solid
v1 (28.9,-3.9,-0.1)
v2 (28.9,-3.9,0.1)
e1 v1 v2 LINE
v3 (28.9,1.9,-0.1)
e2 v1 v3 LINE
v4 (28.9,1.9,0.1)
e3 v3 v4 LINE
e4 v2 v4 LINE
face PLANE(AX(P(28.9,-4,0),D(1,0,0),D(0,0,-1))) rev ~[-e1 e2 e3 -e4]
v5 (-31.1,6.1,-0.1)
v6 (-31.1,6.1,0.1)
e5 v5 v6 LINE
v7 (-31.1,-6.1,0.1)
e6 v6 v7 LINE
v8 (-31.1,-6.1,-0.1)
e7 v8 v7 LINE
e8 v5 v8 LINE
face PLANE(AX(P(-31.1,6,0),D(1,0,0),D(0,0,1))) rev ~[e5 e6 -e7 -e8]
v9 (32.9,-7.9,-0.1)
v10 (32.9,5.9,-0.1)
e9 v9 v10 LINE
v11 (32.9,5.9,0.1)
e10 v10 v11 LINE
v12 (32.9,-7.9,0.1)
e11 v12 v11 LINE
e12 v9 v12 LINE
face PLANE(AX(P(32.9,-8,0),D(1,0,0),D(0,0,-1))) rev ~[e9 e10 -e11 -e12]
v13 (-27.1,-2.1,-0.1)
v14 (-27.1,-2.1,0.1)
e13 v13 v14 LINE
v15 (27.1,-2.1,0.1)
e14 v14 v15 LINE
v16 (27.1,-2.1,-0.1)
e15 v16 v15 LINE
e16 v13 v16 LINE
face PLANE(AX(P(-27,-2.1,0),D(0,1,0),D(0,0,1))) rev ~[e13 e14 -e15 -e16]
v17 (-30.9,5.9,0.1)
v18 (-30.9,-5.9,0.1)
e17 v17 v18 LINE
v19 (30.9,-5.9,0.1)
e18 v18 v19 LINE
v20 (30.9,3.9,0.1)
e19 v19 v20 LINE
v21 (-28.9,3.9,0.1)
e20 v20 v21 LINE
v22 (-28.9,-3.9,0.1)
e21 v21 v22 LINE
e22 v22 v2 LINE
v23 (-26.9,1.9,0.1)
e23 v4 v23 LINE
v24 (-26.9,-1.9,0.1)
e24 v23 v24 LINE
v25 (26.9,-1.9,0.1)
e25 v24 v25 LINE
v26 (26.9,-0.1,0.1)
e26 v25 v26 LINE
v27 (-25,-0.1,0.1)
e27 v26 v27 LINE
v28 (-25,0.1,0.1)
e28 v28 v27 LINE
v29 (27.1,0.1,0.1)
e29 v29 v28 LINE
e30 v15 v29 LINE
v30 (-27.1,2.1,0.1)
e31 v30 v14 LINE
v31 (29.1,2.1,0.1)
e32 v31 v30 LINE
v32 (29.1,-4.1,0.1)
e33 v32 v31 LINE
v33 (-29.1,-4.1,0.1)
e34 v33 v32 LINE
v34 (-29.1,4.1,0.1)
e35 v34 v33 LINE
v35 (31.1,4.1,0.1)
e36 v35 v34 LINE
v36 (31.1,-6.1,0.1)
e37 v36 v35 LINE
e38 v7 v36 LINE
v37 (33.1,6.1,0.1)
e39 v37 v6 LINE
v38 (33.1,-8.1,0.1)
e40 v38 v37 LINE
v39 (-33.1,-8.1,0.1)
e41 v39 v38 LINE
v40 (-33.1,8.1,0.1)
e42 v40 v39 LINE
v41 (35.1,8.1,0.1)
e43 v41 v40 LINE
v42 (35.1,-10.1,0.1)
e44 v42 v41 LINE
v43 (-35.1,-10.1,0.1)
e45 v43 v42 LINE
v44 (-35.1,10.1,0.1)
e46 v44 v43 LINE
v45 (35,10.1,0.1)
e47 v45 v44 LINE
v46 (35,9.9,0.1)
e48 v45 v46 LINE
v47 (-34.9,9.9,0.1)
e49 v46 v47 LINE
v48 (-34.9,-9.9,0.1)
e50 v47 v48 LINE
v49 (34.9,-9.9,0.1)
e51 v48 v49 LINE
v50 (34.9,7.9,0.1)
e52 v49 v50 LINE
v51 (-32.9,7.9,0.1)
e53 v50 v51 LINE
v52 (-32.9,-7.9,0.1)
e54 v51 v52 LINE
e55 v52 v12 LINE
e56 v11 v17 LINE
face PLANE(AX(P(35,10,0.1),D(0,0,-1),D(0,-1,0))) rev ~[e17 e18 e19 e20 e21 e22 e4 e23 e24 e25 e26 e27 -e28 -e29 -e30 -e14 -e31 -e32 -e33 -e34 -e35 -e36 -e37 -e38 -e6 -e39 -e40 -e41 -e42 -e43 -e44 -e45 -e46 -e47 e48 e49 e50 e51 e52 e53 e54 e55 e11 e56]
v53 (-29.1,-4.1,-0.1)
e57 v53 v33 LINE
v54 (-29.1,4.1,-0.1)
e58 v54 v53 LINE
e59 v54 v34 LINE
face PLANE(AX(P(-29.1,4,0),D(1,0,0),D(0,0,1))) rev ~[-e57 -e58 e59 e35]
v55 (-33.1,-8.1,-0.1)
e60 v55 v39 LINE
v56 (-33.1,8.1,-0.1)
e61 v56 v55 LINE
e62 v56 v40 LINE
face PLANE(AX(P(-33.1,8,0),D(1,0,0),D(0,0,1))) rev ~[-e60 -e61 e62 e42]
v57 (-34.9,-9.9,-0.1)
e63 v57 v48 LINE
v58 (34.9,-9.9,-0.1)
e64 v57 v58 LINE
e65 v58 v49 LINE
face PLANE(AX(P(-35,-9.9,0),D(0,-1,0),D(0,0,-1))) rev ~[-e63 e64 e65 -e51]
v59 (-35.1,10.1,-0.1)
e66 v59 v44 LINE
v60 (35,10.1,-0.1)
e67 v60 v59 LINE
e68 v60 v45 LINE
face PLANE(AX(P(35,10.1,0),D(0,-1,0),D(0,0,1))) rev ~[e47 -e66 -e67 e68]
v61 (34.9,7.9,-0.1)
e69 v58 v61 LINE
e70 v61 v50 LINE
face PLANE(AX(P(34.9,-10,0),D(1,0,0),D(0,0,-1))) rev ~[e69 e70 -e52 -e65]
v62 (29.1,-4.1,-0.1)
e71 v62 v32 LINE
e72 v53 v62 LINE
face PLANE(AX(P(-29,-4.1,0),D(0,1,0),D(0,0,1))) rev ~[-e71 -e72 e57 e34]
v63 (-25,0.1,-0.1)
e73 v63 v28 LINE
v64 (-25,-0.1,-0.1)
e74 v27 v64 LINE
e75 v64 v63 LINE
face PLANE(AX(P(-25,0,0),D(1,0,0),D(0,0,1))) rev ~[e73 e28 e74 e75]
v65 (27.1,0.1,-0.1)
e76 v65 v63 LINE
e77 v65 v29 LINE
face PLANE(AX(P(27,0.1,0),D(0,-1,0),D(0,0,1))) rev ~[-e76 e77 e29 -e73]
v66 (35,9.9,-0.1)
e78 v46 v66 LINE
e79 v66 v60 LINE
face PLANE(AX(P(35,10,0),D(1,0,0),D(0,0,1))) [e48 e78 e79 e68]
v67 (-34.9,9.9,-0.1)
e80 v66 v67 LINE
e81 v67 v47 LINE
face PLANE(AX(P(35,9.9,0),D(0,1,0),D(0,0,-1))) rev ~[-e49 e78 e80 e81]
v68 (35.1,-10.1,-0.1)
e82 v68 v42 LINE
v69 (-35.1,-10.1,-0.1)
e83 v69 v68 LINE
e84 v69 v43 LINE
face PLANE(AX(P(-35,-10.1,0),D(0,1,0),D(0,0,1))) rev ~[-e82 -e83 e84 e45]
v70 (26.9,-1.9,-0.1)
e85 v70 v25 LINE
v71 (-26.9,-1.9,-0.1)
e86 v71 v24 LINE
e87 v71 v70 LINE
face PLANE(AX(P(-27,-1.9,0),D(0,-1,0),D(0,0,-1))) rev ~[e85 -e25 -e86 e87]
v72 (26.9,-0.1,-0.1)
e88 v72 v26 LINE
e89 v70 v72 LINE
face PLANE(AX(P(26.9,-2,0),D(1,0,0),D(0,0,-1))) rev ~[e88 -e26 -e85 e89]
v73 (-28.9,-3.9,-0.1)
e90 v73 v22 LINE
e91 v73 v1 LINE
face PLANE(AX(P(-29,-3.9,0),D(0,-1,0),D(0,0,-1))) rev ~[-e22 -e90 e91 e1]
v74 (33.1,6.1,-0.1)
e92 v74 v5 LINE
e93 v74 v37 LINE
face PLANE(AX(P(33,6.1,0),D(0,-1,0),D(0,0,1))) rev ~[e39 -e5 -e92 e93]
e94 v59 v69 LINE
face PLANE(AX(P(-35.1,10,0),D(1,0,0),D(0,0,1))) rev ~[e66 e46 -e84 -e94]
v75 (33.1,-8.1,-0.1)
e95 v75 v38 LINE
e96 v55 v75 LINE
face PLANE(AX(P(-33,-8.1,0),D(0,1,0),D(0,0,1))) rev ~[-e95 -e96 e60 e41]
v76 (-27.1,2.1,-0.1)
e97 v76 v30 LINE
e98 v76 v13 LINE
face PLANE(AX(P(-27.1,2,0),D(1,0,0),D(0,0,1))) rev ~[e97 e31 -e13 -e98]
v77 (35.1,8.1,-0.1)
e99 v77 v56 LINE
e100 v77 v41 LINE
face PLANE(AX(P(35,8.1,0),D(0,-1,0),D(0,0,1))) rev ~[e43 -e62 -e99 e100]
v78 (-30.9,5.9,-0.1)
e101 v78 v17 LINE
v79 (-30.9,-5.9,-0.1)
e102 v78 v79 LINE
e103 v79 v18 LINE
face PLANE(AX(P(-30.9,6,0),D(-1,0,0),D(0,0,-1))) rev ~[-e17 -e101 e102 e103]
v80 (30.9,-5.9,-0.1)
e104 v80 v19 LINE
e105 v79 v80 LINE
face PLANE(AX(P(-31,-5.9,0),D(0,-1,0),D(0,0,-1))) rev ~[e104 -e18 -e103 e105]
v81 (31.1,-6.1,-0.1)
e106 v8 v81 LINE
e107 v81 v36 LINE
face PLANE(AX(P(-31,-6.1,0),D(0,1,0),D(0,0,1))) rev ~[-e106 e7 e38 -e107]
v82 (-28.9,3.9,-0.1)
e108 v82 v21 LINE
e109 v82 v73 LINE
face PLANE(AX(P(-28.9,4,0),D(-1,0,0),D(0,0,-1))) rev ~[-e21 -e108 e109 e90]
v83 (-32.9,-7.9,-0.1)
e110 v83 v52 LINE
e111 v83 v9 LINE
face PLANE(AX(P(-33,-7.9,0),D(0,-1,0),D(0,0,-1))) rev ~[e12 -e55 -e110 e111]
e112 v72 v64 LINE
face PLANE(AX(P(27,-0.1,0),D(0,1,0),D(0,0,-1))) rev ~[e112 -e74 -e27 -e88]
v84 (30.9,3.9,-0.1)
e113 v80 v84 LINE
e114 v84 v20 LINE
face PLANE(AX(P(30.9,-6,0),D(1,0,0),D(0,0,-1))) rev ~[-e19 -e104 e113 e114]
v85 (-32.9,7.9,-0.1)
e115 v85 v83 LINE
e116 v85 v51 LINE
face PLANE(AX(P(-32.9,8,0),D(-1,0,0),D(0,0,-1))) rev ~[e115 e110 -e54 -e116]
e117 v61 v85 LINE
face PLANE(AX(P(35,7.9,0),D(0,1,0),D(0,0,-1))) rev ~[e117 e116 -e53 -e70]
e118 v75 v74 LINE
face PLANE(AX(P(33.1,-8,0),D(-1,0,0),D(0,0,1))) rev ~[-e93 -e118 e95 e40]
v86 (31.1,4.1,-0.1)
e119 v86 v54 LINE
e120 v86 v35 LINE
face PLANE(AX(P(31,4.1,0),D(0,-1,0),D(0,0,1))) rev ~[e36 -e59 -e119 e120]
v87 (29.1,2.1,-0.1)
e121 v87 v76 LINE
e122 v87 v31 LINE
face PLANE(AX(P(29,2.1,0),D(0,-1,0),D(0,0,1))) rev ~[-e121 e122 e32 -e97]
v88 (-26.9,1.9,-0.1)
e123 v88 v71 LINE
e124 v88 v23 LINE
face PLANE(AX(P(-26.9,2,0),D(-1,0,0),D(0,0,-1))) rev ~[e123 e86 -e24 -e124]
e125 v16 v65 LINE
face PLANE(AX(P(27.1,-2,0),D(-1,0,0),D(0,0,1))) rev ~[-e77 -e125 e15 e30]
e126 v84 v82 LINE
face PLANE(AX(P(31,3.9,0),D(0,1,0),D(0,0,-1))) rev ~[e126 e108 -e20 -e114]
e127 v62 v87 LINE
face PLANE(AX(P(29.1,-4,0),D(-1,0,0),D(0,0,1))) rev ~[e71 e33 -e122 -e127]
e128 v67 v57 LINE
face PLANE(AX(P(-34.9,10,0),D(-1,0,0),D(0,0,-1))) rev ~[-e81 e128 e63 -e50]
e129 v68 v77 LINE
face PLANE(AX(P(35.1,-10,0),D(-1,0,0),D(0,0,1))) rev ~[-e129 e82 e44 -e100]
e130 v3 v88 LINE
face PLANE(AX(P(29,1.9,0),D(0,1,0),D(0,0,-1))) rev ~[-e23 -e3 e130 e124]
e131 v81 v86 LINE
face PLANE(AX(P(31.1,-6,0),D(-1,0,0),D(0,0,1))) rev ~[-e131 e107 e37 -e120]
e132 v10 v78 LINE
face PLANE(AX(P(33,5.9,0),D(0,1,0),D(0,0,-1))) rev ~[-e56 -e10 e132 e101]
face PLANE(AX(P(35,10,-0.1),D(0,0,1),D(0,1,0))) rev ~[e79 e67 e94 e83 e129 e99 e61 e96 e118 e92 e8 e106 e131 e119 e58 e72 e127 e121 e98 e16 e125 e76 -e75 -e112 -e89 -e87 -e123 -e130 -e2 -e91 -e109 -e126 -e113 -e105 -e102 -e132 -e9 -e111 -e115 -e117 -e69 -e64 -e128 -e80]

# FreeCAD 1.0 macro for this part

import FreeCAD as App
import Part
import Sketcher

V = App.Vector
Q = App.Units.Quantity


def add_polygon(sketch, points):
    """Adds a closed chain of lines whose ends are joined by coincident constraints."""
    first, n = sketch.GeometryCount, len(points)
    for a, b in zip(points, points[1:] + points[:1]):
        sketch.addGeometry(Part.LineSegment(App.Vector(*a, 0), App.Vector(*b, 0)), False)
    for i in range(n):
        sketch.addConstraint(Sketcher.Constraint("Coincident", first + i, 2, first + (i + 1) % n, 1))

doc = App.newDocument("Part")
body = doc.addObject("PartDesign::Body", "Body")

sketch1 = doc.addObject("Sketcher::SketchObject", "Sketch")
body.addObject(sketch1)
sketch1.AttachmentSupport = (doc.YZ_Plane, [""])
sketch1.MapMode = "FlatFace"
add_polygon(sketch1, [(0.1, 0.1), (-0.1, 0.1), (-0.1, -0.1), (0.1, -0.1)])
sketch1.addConstraint(Sketcher.Constraint("Horizontal", 0))
sketch1.addConstraint(Sketcher.Constraint("Vertical", 1))
sketch1.addConstraint(Sketcher.Constraint("Horizontal", 2))
sketch1.addConstraint(Sketcher.Constraint("Vertical", 3))
sketch1.addConstraint(Sketcher.Constraint("Symmetric", 0, 2, 2, 2, -1, 1))
sketch1.addConstraint(Sketcher.Constraint("Equal", 2, 1))
sketch1.addConstraint(Sketcher.Constraint("DistanceX", 0, 2, 0, 1, Q("0.2 mm")))

sketch2 = doc.addObject("Sketcher::SketchObject", "Sketch001")
body.addObject(sketch2)
sketch2.AttachmentSupport = (doc.XY_Plane, [""])
sketch2.MapMode = "FlatFace"
sketch2.addGeometry(Part.LineSegment(V(35, 10, 0), V(-35, 10, 0)), False)
sketch2.addGeometry(Part.LineSegment(V(-35, 10, 0), V(-35, -10, 0)), False)
sketch2.addGeometry(Part.LineSegment(V(-35, -10, 0), V(35, -10, 0)), False)
sketch2.addGeometry(Part.LineSegment(V(35, -10, 0), V(35, 8, 0)), False)
sketch2.addGeometry(Part.LineSegment(V(35, 8, 0), V(-33, 8, 0)), False)
sketch2.addGeometry(Part.LineSegment(V(-33, 8, 0), V(-33, -8, 0)), False)
sketch2.addGeometry(Part.LineSegment(V(-33, -8, 0), V(33, -8, 0)), False)
sketch2.addGeometry(Part.LineSegment(V(33, -8, 0), V(33, 6, 0)), False)
sketch2.addGeometry(Part.LineSegment(V(33, 6, 0), V(-31, 6, 0)), False)
sketch2.addGeometry(Part.LineSegment(V(-31, 6, 0), V(-31, -6, 0)), False)
sketch2.addGeometry(Part.LineSegment(V(-31, -6, 0), V(31, -6, 0)), False)
sketch2.addGeometry(Part.LineSegment(V(31, -6, 0), V(31, 4, 0)), False)
sketch2.addGeometry(Part.LineSegment(V(31, 4, 0), V(-29, 4, 0)), False)
sketch2.addGeometry(Part.LineSegment(V(-29, 4, 0), V(-29, -4, 0)), False)
sketch2.addGeometry(Part.LineSegment(V(-29, -4, 0), V(29, -4, 0)), False)
sketch2.addGeometry(Part.LineSegment(V(29, -4, 0), V(29, 2, 0)), False)
sketch2.addGeometry(Part.LineSegment(V(29, 2, 0), V(-27, 2, 0)), False)
sketch2.addGeometry(Part.LineSegment(V(-27, 2, 0), V(-27, -2, 0)), False)
sketch2.addGeometry(Part.LineSegment(V(-27, -2, 0), V(27, -2, 0)), False)
sketch2.addGeometry(Part.LineSegment(V(27, -2, 0), V(27, 0, 0)), False)
sketch2.addGeometry(Part.LineSegment(V(27, 0, 0), V(-25, 0, 0)), False)
sketch2.addConstraint(Sketcher.Constraint("Coincident", 0, 2, 1, 1))
sketch2.addConstraint(Sketcher.Constraint("Coincident", 1, 2, 2, 1))
sketch2.addConstraint(Sketcher.Constraint("Coincident", 2, 2, 3, 1))
sketch2.addConstraint(Sketcher.Constraint("Coincident", 3, 2, 4, 1))
sketch2.addConstraint(Sketcher.Constraint("Coincident", 4, 2, 5, 1))
sketch2.addConstraint(Sketcher.Constraint("Coincident", 5, 2, 6, 1))
sketch2.addConstraint(Sketcher.Constraint("Coincident", 6, 2, 7, 1))
sketch2.addConstraint(Sketcher.Constraint("Coincident", 7, 2, 8, 1))
sketch2.addConstraint(Sketcher.Constraint("Coincident", 8, 2, 9, 1))
sketch2.addConstraint(Sketcher.Constraint("Coincident", 9, 2, 10, 1))
sketch2.addConstraint(Sketcher.Constraint("Coincident", 10, 2, 11, 1))
sketch2.addConstraint(Sketcher.Constraint("Coincident", 11, 2, 12, 1))
sketch2.addConstraint(Sketcher.Constraint("Coincident", 12, 2, 13, 1))
sketch2.addConstraint(Sketcher.Constraint("Coincident", 13, 2, 14, 1))
sketch2.addConstraint(Sketcher.Constraint("Coincident", 14, 2, 15, 1))
sketch2.addConstraint(Sketcher.Constraint("Coincident", 15, 2, 16, 1))
sketch2.addConstraint(Sketcher.Constraint("Coincident", 16, 2, 17, 1))
sketch2.addConstraint(Sketcher.Constraint("Coincident", 17, 2, 18, 1))
sketch2.addConstraint(Sketcher.Constraint("Coincident", 18, 2, 19, 1))
sketch2.addConstraint(Sketcher.Constraint("Coincident", 19, 2, 20, 1))
sketch2.addConstraint(Sketcher.Constraint("Horizontal", 0))
sketch2.addConstraint(Sketcher.Constraint("Vertical", 1))
sketch2.addConstraint(Sketcher.Constraint("Horizontal", 2))
sketch2.addConstraint(Sketcher.Constraint("Vertical", 3))
sketch2.addConstraint(Sketcher.Constraint("Horizontal", 4))
sketch2.addConstraint(Sketcher.Constraint("Vertical", 5))
sketch2.addConstraint(Sketcher.Constraint("Horizontal", 6))
sketch2.addConstraint(Sketcher.Constraint("Vertical", 7))
sketch2.addConstraint(Sketcher.Constraint("Horizontal", 8))
sketch2.addConstraint(Sketcher.Constraint("Vertical", 9))
sketch2.addConstraint(Sketcher.Constraint("Horizontal", 10))
sketch2.addConstraint(Sketcher.Constraint("Vertical", 11))
sketch2.addConstraint(Sketcher.Constraint("Horizontal", 12))
sketch2.addConstraint(Sketcher.Constraint("Vertical", 13))
sketch2.addConstraint(Sketcher.Constraint("Horizontal", 14))
sketch2.addConstraint(Sketcher.Constraint("Vertical", 15))
sketch2.addConstraint(Sketcher.Constraint("Horizontal", 16))
sketch2.addConstraint(Sketcher.Constraint("Vertical", 17))
sketch2.addConstraint(Sketcher.Constraint("Horizontal", 18))
sketch2.addConstraint(Sketcher.Constraint("Vertical", 19))
sketch2.addConstraint(Sketcher.Constraint("Horizontal", 20))
sketch2.addConstraint(Sketcher.Constraint("Symmetric", 0, 1, 1, 2, -1, 1))
sketch2.addConstraint(Sketcher.Constraint("Symmetric", 4, 2, 6, 2, -1, 1))
sketch2.addConstraint(Sketcher.Constraint("Symmetric", 8, 2, 10, 2, -1, 1))
sketch2.addConstraint(Sketcher.Constraint("Symmetric", 12, 2, 14, 2, -1, 1))
sketch2.addConstraint(Sketcher.Constraint("Symmetric", 16, 2, 18, 2, -1, 1))
sketch2.addConstraint(Sketcher.Constraint("PointOnObject", 19, 2, -1))
sketch2.addConstraint(Sketcher.Constraint("Vertical", 0, 1, 2, 2))
sketch2.addConstraint(Sketcher.Constraint("DistanceX", 0, 2, 0, 1, Q("70 mm")))
sketch2.addConstraint(Sketcher.Constraint("DistanceX", 4, 2, 4, 1, Q("68 mm")))
sketch2.addConstraint(Sketcher.Constraint("DistanceX", 8, 2, 8, 1, Q("64 mm")))
sketch2.addConstraint(Sketcher.Constraint("DistanceX", 12, 2, 12, 1, Q("60 mm")))
sketch2.addConstraint(Sketcher.Constraint("DistanceX", 16, 2, 16, 1, Q("56 mm")))
sketch2.addConstraint(Sketcher.Constraint("DistanceX", 20, 2, 20, 1, Q("52 mm")))
sketch2.addConstraint(Sketcher.Constraint("DistanceY", 1, 2, 1, 1, Q("20 mm")))
sketch2.addConstraint(Sketcher.Constraint("DistanceY", 3, 1, 3, 2, Q("18 mm")))
sketch2.addConstraint(Sketcher.Constraint("DistanceY", 7, 1, 7, 2, Q("14 mm")))
sketch2.addConstraint(Sketcher.Constraint("DistanceY", 11, 1, 11, 2, Q("10 mm")))
sketch2.addConstraint(Sketcher.Constraint("DistanceY", 15, 1, 15, 2, Q("6 mm")))
doc.recompute()

additivepipe = doc.addObject("PartDesign::AdditivePipe", "AdditivePipe")
body.addObject(additivepipe)
additivepipe.Profile = sketch1
additivepipe.Spine = (sketch2, ["Edge1", "Edge2", "Edge3", "Edge4", "Edge5", "Edge6", "Edge7", "Edge8", "Edge9", "Edge10", "Edge11", "Edge12", "Edge13", "Edge14", "Edge15", "Edge16", "Edge17", "Edge18", "Edge19", "Edge20", "Edge21"])
additivepipe.Transition = "Right corner"

doc.recompute()
